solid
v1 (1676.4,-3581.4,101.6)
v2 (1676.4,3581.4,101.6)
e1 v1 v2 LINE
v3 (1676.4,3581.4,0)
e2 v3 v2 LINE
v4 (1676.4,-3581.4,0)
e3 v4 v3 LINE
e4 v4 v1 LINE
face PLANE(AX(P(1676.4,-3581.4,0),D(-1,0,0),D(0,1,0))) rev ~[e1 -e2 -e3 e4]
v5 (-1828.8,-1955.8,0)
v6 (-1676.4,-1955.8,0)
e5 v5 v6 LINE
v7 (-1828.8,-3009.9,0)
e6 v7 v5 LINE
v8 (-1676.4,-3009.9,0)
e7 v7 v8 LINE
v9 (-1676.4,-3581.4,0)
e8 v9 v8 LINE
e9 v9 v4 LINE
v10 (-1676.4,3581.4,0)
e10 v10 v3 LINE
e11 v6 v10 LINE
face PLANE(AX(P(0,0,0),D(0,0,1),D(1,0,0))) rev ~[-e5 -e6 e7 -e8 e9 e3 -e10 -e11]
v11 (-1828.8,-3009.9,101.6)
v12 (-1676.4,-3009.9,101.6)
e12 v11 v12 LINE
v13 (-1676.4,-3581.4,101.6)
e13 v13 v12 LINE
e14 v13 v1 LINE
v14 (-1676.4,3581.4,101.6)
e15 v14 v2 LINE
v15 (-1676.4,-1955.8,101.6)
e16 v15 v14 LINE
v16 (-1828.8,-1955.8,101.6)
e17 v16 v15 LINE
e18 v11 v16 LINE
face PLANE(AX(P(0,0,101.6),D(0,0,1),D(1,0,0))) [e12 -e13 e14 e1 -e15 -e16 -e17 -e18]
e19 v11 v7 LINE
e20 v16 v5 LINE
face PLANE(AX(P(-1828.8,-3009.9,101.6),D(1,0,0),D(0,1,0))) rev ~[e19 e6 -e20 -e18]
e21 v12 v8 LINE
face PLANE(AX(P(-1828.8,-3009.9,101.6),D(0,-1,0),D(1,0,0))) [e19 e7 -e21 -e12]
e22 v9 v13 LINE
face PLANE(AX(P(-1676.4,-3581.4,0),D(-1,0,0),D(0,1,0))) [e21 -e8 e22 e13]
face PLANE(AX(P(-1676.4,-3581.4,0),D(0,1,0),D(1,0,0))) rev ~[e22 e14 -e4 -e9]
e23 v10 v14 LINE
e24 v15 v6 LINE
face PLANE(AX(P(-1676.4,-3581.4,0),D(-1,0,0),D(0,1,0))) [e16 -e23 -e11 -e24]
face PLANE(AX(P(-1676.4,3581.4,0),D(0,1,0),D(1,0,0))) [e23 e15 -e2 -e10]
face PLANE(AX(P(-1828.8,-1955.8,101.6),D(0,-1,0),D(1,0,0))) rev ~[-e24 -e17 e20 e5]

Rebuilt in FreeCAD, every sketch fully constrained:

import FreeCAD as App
import Part
import Sketcher
from FreeCAD import Vector
Q = App.Units.Quantity


def add_polygon(sketch, points):
    """Adds a closed chain of lines whose ends are joined by coincident constraints."""
    first, n = sketch.GeometryCount, len(points)
    for a, b in zip(points, points[1:] + points[:1]):
        sketch.addGeometry(Part.LineSegment(App.Vector(*a, 0), App.Vector(*b, 0)), False)
    for i in range(n):
        sketch.addConstraint(Sketcher.Constraint("Coincident", first + i, 2, first + (i + 1) % n, 1))

doc = App.newDocument("Part")
params = doc.addObject("Spreadsheet::Sheet", "Params")
for row, (alias, value) in enumerate([
    ("sketch1_width", "132 in"),
    ("sketch1_height", "282 in"),
    ("pad1_length", "4 in"),
    ("sketch2_width", "6 in"),
    ("sketch2_height", "41.5 in"),
    ("pad2_length", "4 in"),
], start=1):
    params.set(f"A{row}", alias)
    params.set(f"B{row}", "=" + value)
    params.setAlias(f"B{row}", alias)

body = doc.addObject("PartDesign::Body", "Body")

# Sketch on XY plane
sketch1 = doc.addObject("Sketcher::SketchObject", "Sketch")
body.addObject(sketch1)
sketch1.AttachmentSupport = (doc.XY_Plane, [""])
sketch1.MapMode = "FlatFace"
add_polygon(sketch1, [(-1676.4, 3581.4), (-1676.4, -3581.4), (1676.4, -3581.4), (1676.4, 3581.4)])  # lines 0-3
sketch1.addConstraint(Sketcher.Constraint("Vertical", 0))
sketch1.addConstraint(Sketcher.Constraint("Horizontal", 1))
sketch1.addConstraint(Sketcher.Constraint("Vertical", 2))
sketch1.addConstraint(Sketcher.Constraint("Horizontal", 3))
sketch1.addConstraint(Sketcher.Constraint("Symmetric", 0, 2, 2, 2, -1, 1))
sketch1.addConstraint(Sketcher.Constraint("DistanceX", 1, 1, 1, 2, Q("132 in")))
sketch1.addConstraint(Sketcher.Constraint("DistanceY", 0, 2, 0, 1, Q("282 in")))
sketch1.setExpression("Constraints[9]", "Params.sketch1_width")
sketch1.setExpression("Constraints[10]", "Params.sketch1_height")
pad1 = doc.addObject("PartDesign::Pad", "Pad")
body.addObject(pad1)
pad1.Profile = sketch1
pad1.setExpression("Length", "Params.pad1_length")

# Sketch on XY plane
sketch2 = doc.addObject("Sketcher::SketchObject", "Sketch001")
body.addObject(sketch2)
sketch2.AttachmentSupport = (doc.XY_Plane, [""])
sketch2.MapMode = "FlatFace"
sketch2.AttachmentOffset = App.Placement(Vector(0, 0, 4 * 25.4), App.Rotation())
add_polygon(sketch2, [(-1828.8, -1955.8), (-1828.8, -3009.9), (-1676.4, -3009.9), (-1676.4, -1955.8)])  # lines 0-3
sketch2.addConstraint(Sketcher.Constraint("Vertical", 0))
sketch2.addConstraint(Sketcher.Constraint("Horizontal", 1))
sketch2.addConstraint(Sketcher.Constraint("Vertical", 2))
sketch2.addConstraint(Sketcher.Constraint("Horizontal", 3))
sketch2.addConstraint(Sketcher.Constraint("DistanceX", 1, 1, 1, 2, Q("6 in")))
sketch2.addConstraint(Sketcher.Constraint("DistanceY", 0, 2, 0, 1, Q("41.5 in")))
sketch2.addConstraint(Sketcher.Constraint("DistanceX", 0, 2, -1, 1, Q("72 in")))
sketch2.addConstraint(Sketcher.Constraint("DistanceY", 2, 2, -1, 1, Q("77 in")))
sketch2.setExpression("Constraints[8]", "Params.sketch2_width")
sketch2.setExpression("Constraints[9]", "Params.sketch2_height")
pad2 = doc.addObject("PartDesign::Pad", "Pad001")
body.addObject(pad2)
pad2.Profile = sketch2
pad2.setExpression("Length", "Params.pad2_length")
pad2.Reversed = True

doc.recompute()
